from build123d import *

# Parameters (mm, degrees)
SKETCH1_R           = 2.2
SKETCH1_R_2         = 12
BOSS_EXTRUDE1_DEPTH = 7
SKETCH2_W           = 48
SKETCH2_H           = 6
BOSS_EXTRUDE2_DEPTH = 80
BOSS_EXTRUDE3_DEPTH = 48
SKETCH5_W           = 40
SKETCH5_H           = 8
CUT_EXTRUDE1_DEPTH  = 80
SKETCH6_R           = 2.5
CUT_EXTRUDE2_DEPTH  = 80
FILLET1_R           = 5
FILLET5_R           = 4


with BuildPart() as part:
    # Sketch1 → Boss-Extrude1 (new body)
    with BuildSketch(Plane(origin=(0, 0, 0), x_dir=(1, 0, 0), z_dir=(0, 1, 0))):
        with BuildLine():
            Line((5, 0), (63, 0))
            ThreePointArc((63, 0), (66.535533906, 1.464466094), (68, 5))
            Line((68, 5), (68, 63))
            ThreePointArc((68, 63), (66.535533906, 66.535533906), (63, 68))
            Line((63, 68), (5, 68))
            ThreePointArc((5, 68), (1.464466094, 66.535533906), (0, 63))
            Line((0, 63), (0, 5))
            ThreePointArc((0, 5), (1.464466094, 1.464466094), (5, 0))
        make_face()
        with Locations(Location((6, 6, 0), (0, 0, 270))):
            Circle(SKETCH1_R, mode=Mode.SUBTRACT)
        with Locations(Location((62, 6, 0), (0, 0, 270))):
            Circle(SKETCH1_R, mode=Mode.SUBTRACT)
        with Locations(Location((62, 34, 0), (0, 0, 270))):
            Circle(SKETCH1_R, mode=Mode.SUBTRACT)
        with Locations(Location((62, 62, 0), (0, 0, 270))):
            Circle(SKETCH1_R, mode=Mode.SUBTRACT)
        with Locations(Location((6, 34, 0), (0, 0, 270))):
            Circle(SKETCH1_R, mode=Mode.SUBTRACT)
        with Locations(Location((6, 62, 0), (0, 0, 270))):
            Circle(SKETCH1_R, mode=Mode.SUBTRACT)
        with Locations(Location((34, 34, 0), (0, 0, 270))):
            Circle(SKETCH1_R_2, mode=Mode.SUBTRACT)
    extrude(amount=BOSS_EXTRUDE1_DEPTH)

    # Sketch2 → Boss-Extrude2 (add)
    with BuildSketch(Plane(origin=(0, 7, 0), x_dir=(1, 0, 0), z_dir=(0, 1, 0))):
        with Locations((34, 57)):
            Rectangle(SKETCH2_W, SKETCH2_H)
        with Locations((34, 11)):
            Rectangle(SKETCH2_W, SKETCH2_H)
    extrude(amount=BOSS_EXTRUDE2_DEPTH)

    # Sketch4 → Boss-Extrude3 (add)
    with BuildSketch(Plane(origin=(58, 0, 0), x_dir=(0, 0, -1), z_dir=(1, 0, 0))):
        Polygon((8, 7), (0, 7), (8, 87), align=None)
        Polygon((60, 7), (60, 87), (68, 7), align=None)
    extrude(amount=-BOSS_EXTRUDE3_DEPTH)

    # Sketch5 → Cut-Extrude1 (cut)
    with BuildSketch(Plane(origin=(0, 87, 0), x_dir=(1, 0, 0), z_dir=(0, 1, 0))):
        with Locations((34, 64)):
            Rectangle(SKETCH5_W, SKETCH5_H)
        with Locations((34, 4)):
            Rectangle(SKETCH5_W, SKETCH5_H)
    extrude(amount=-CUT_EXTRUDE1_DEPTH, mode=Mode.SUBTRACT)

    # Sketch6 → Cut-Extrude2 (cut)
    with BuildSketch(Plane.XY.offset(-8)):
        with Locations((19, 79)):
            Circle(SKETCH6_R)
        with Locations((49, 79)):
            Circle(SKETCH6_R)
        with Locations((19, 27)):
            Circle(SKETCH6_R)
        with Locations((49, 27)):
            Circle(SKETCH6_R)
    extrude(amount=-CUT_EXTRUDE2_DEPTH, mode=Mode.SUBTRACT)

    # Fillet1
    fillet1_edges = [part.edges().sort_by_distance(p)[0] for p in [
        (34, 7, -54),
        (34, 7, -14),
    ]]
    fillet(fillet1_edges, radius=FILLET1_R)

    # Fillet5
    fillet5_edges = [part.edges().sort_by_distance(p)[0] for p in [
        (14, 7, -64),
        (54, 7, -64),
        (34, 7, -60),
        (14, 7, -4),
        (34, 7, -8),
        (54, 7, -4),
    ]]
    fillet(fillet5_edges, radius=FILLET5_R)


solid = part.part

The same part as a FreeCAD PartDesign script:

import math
import FreeCAD as App
import Part
import Sketcher
Q = App.Units.Quantity


def edges_at(feature, points):
    """Names of the edges that pass closest to the given points."""
    edges = feature.Shape.Edges
    near = lambda p: min(range(len(edges)), key=lambda i: edges[i].distToShape(Part.Vertex(*p))[0])
    return sorted({f"Edge{near(p) + 1}" for p in points})

doc = App.newDocument("Part")
body = doc.addObject("PartDesign::Body", "Body")

sketch1 = doc.addObject("Sketcher::SketchObject", "Sketch")
body.addObject(sketch1)
sketch1.AttachmentSupport = (doc.XZ_Plane, [""])
sketch1.MapMode = "FlatFace"
sketch1.addGeometry(Part.LineSegment(App.Vector(5, 0, 0), App.Vector(63, 0, 0)), False)
sketch1.addGeometry(Part.ArcOfCircle(Part.Circle(App.Vector(63, -5, 0), App.Vector(0, 0, 1), 5), math.radians(0), math.radians(90)), False)
sketch1.addGeometry(Part.LineSegment(App.Vector(68, -5, 0), App.Vector(68, -63, 0)), False)
sketch1.addGeometry(Part.ArcOfCircle(Part.Circle(App.Vector(63, -63, 0), App.Vector(0, 0, 1), 5), math.radians(-90), math.radians(0)), False)
sketch1.addGeometry(Part.LineSegment(App.Vector(63, -68, 0), App.Vector(5, -68, 0)), False)
sketch1.addGeometry(Part.ArcOfCircle(Part.Circle(App.Vector(5, -63, 0), App.Vector(0, 0, 1), 5), math.radians(180), math.radians(270)), False)
sketch1.addGeometry(Part.LineSegment(App.Vector(0, -63, 0), App.Vector(0, -5, 0)), False)
sketch1.addGeometry(Part.ArcOfCircle(Part.Circle(App.Vector(5, -5, 0), App.Vector(0, 0, 1), 5), math.radians(90), math.radians(180)), False)
sketch1.addGeometry(Part.Circle(App.Vector(6, -6, 0), App.Vector(0, 0, 1), 2.2), False)
sketch1.addGeometry(Part.Circle(App.Vector(6, -34, 0), App.Vector(0, 0, 1), 2.2), False)
sketch1.addGeometry(Part.Circle(App.Vector(62, -6, 0), App.Vector(0, 0, 1), 2.2), False)
sketch1.addGeometry(Part.Circle(App.Vector(34, -34, 0), App.Vector(0, 0, 1), 12), False)
sketch1.addGeometry(Part.Circle(App.Vector(62, -34, 0), App.Vector(0, 0, 1), 2.2), False)
sketch1.addGeometry(Part.Circle(App.Vector(6, -62, 0), App.Vector(0, 0, 1), 2.2), False)
sketch1.addGeometry(Part.Circle(App.Vector(62, -62, 0), App.Vector(0, 0, 1), 2.2), False)
sketch1.addConstraint(Sketcher.Constraint("Tangent", 0, 2, 1, 2))
sketch1.addConstraint(Sketcher.Constraint("Tangent", 1, 1, 2, 1))
sketch1.addConstraint(Sketcher.Constraint("Tangent", 2, 2, 3, 2))
sketch1.addConstraint(Sketcher.Constraint("Tangent", 3, 1, 4, 1))
sketch1.addConstraint(Sketcher.Constraint("Tangent", 4, 2, 5, 2))
sketch1.addConstraint(Sketcher.Constraint("Tangent", 5, 1, 6, 1))
sketch1.addConstraint(Sketcher.Constraint("Tangent", 6, 2, 7, 2))
sketch1.addConstraint(Sketcher.Constraint("Tangent", 7, 1, 0, 1))
sketch1.addConstraint(Sketcher.Constraint("Horizontal", 0))
sketch1.addConstraint(Sketcher.Constraint("Vertical", 2))
sketch1.addConstraint(Sketcher.Constraint("Horizontal", 4))
sketch1.addConstraint(Sketcher.Constraint("Vertical", 6))
sketch1.addConstraint(Sketcher.Constraint("Equal", 1, 3))
sketch1.addConstraint(Sketcher.Constraint("Equal", 3, 5))
sketch1.addConstraint(Sketcher.Constraint("Equal", 5, 7))
sketch1.addConstraint(Sketcher.Constraint("Equal", 8, 9))
sketch1.addConstraint(Sketcher.Constraint("Equal", 9, 10))
sketch1.addConstraint(Sketcher.Constraint("Equal", 10, 12))
sketch1.addConstraint(Sketcher.Constraint("Equal", 12, 13))
sketch1.addConstraint(Sketcher.Constraint("Equal", 13, 14))
sketch1.addConstraint(Sketcher.Constraint("PointOnObject", 0, 2, -1))
sketch1.addConstraint(Sketcher.Constraint("PointOnObject", 5, 1, -2))
sketch1.addConstraint(Sketcher.Constraint("Horizontal", 8, 3, 10, 3))
sketch1.addConstraint(Sketcher.Constraint("Horizontal", 9, 3, 11, 3))
sketch1.addConstraint(Sketcher.Constraint("Horizontal", 11, 3, 12, 3))
sketch1.addConstraint(Sketcher.Constraint("Horizontal", 13, 3, 14, 3))
sketch1.addConstraint(Sketcher.Constraint("Vertical", 8, 3, 9, 3))
sketch1.addConstraint(Sketcher.Constraint("Vertical", 10, 3, 12, 3))
sketch1.addConstraint(Sketcher.Constraint("Vertical", 9, 3, 13, 3))
sketch1.addConstraint(Sketcher.Constraint("Vertical", 12, 3, 14, 3))
sketch1.addConstraint(Sketcher.Constraint("Equal", 4, 2))
sketch1.addConstraint(Sketcher.Constraint("Diameter", 11, Q("24 mm")))
sketch1.addConstraint(Sketcher.Constraint("Radius", 1, Q("5 mm")))
sketch1.addConstraint(Sketcher.Constraint("Diameter", 8, Q("4.4 mm")))
sketch1.addConstraint(Sketcher.Constraint("DistanceX", 0, 1, 0, 2, Q("58 mm")))
sketch1.addConstraint(Sketcher.Constraint("DistanceX", -1, 1, 8, 3, Q("6 mm")))
sketch1.addConstraint(Sketcher.Constraint("DistanceY", 8, 3, -1, 1, Q("6 mm")))
sketch1.addConstraint(Sketcher.Constraint("DistanceY", 9, 3, -1, 1, Q("34 mm")))
sketch1.addConstraint(Sketcher.Constraint("DistanceX", -1, 1, 10, 3, Q("62 mm")))
sketch1.addConstraint(Sketcher.Constraint("DistanceX", -1, 1, 11, 3, Q("34 mm")))
sketch1.addConstraint(Sketcher.Constraint("DistanceY", 13, 3, -1, 1, Q("62 mm")))
pad1 = doc.addObject("PartDesign::Pad", "Pad")
body.addObject(pad1)
pad1.Profile = sketch1
pad1.Length = 7
pad1.Reversed = True

sketch2 = doc.addObject("Sketcher::SketchObject", "Sketch001")
body.addObject(sketch2)
sketch2.AttachmentSupport = (doc.XZ_Plane, [""])
sketch2.MapMode = "FlatFace"
sketch2.AttachmentOffset = App.Placement(App.Vector(0, 0, -7), App.Rotation())
sketch2.addGeometry(Part.LineSegment(App.Vector(10, -60, 0), App.Vector(10, -54, 0)), False)
sketch2.addGeometry(Part.LineSegment(App.Vector(10, -54, 0), App.Vector(58, -54, 0)), False)
sketch2.addGeometry(Part.LineSegment(App.Vector(58, -54, 0), App.Vector(58, -60, 0)), False)
sketch2.addGeometry(Part.LineSegment(App.Vector(58, -60, 0), App.Vector(10, -60, 0)), False)
sketch2.addGeometry(Part.LineSegment(App.Vector(10, -14, 0), App.Vector(10, -8, 0)), False)
sketch2.addGeometry(Part.LineSegment(App.Vector(10, -8, 0), App.Vector(58, -8, 0)), False)
sketch2.addGeometry(Part.LineSegment(App.Vector(58, -8, 0), App.Vector(58, -14, 0)), False)
sketch2.addGeometry(Part.LineSegment(App.Vector(58, -14, 0), App.Vector(10, -14, 0)), False)
sketch2.addConstraint(Sketcher.Constraint("Coincident", 0, 2, 1, 1))
sketch2.addConstraint(Sketcher.Constraint("Coincident", 1, 2, 2, 1))
sketch2.addConstraint(Sketcher.Constraint("Coincident", 2, 2, 3, 1))
sketch2.addConstraint(Sketcher.Constraint("Coincident", 3, 2, 0, 1))
sketch2.addConstraint(Sketcher.Constraint("Coincident", 4, 2, 5, 1))
sketch2.addConstraint(Sketcher.Constraint("Coincident", 5, 2, 6, 1))
sketch2.addConstraint(Sketcher.Constraint("Coincident", 6, 2, 7, 1))
sketch2.addConstraint(Sketcher.Constraint("Coincident", 7, 2, 4, 1))
sketch2.addConstraint(Sketcher.Constraint("Vertical", 0))
sketch2.addConstraint(Sketcher.Constraint("Horizontal", 1))
sketch2.addConstraint(Sketcher.Constraint("Vertical", 2))
sketch2.addConstraint(Sketcher.Constraint("Horizontal", 3))
sketch2.addConstraint(Sketcher.Constraint("Vertical", 4))
sketch2.addConstraint(Sketcher.Constraint("Horizontal", 5))
sketch2.addConstraint(Sketcher.Constraint("Vertical", 6))
sketch2.addConstraint(Sketcher.Constraint("Horizontal", 7))
sketch2.addConstraint(Sketcher.Constraint("Vertical", 3, 2, 4, 2))
sketch2.addConstraint(Sketcher.Constraint("Vertical", 2, 2, 5, 2))
sketch2.addConstraint(Sketcher.Constraint("Equal", 2, 4))
sketch2.addConstraint(Sketcher.Constraint("DistanceX", 1, 1, 1, 2, Q("48 mm")))
sketch2.addConstraint(Sketcher.Constraint("DistanceY", 0, 1, 0, 2, Q("6 mm")))
sketch2.addConstraint(Sketcher.Constraint("DistanceX", -1, 1, 0, 2, Q("10 mm")))
sketch2.addConstraint(Sketcher.Constraint("DistanceY", 0, 2, -1, 1, Q("54 mm")))
sketch2.addConstraint(Sketcher.Constraint("DistanceY", 4, 2, -1, 1, Q("8 mm")))
pad2 = doc.addObject("PartDesign::Pad", "Pad001")
body.addObject(pad2)
pad2.Profile = sketch2
pad2.Length = 80
pad2.Reversed = True

sketch3 = doc.addObject("Sketcher::SketchObject", "Sketch002")
body.addObject(sketch3)
sketch3.AttachmentSupport = (doc.YZ_Plane, [""])
sketch3.MapMode = "FlatFace"
sketch3.AttachmentOffset = App.Placement(App.Vector(0, 0, 58), App.Rotation())
sketch3.addGeometry(Part.LineSegment(App.Vector(7, 0, 0), App.Vector(7, -8, 0)), False)
sketch3.addGeometry(Part.LineSegment(App.Vector(7, -8, 0), App.Vector(87, -8, 0)), False)
sketch3.addGeometry(Part.LineSegment(App.Vector(87, -8, 0), App.Vector(7, 0, 0)), False)
sketch3.addGeometry(Part.LineSegment(App.Vector(87, -60, 0), App.Vector(7, -60, 0)), False)
sketch3.addGeometry(Part.LineSegment(App.Vector(7, -60, 0), App.Vector(7, -68, 0)), False)
sketch3.addGeometry(Part.LineSegment(App.Vector(7, -68, 0), App.Vector(87, -60, 0)), False)
sketch3.addConstraint(Sketcher.Constraint("Coincident", 0, 2, 1, 1))
sketch3.addConstraint(Sketcher.Constraint("Coincident", 1, 2, 2, 1))
sketch3.addConstraint(Sketcher.Constraint("Coincident", 2, 2, 0, 1))
sketch3.addConstraint(Sketcher.Constraint("Coincident", 3, 2, 4, 1))
sketch3.addConstraint(Sketcher.Constraint("Coincident", 4, 2, 5, 1))
sketch3.addConstraint(Sketcher.Constraint("Coincident", 5, 2, 3, 1))
sketch3.addConstraint(Sketcher.Constraint("Vertical", 0))
sketch3.addConstraint(Sketcher.Constraint("Horizontal", 1))
sketch3.addConstraint(Sketcher.Constraint("Horizontal", 3))
sketch3.addConstraint(Sketcher.Constraint("Vertical", 4))
sketch3.addConstraint(Sketcher.Constraint("PointOnObject", 2, 2, -1))
sketch3.addConstraint(Sketcher.Constraint("Vertical", 2, 2, 3, 2))
sketch3.addConstraint(Sketcher.Constraint("Vertical", 1, 2, 5, 2))
sketch3.addConstraint(Sketcher.Constraint("Equal", 0, 4))
sketch3.addConstraint(Sketcher.Constraint("DistanceX", 1, 1, 1, 2, Q("80 mm")))
sketch3.addConstraint(Sketcher.Constraint("DistanceY", 0, 2, 0, 1, Q("8 mm")))
sketch3.addConstraint(Sketcher.Constraint("DistanceX", -1, 1, 0, 2, Q("7 mm")))
sketch3.addConstraint(Sketcher.Constraint("DistanceY", 3, 2, -1, 1, Q("60 mm")))
pad3 = doc.addObject("PartDesign::Pad", "Pad002")
body.addObject(pad3)
pad3.Profile = sketch3
pad3.Length = 48
pad3.Reversed = True

sketch4 = doc.addObject("Sketcher::SketchObject", "Sketch003")
body.addObject(sketch4)
sketch4.AttachmentSupport = (doc.XZ_Plane, [""])
sketch4.MapMode = "FlatFace"
sketch4.AttachmentOffset = App.Placement(App.Vector(0, 0, -87), App.Rotation())
sketch4.addGeometry(Part.LineSegment(App.Vector(14, -68, 0), App.Vector(14, -60, 0)), False)
sketch4.addGeometry(Part.LineSegment(App.Vector(14, -60, 0), App.Vector(54, -60, 0)), False)
sketch4.addGeometry(Part.LineSegment(App.Vector(54, -60, 0), App.Vector(54, -68, 0)), False)
sketch4.addGeometry(Part.LineSegment(App.Vector(54, -68, 0), App.Vector(14, -68, 0)), False)
sketch4.addGeometry(Part.LineSegment(App.Vector(14, -8, 0), App.Vector(14, 0, 0)), False)
sketch4.addGeometry(Part.LineSegment(App.Vector(14, 0, 0), App.Vector(54, 0, 0)), False)
sketch4.addGeometry(Part.LineSegment(App.Vector(54, 0, 0), App.Vector(54, -8, 0)), False)
sketch4.addGeometry(Part.LineSegment(App.Vector(54, -8, 0), App.Vector(14, -8, 0)), False)
sketch4.addConstraint(Sketcher.Constraint("Coincident", 0, 2, 1, 1))
sketch4.addConstraint(Sketcher.Constraint("Coincident", 1, 2, 2, 1))
sketch4.addConstraint(Sketcher.Constraint("Coincident", 2, 2, 3, 1))
sketch4.addConstraint(Sketcher.Constraint("Coincident", 3, 2, 0, 1))
sketch4.addConstraint(Sketcher.Constraint("Coincident", 4, 2, 5, 1))
sketch4.addConstraint(Sketcher.Constraint("Coincident", 5, 2, 6, 1))
sketch4.addConstraint(Sketcher.Constraint("Coincident", 6, 2, 7, 1))
sketch4.addConstraint(Sketcher.Constraint("Coincident", 7, 2, 4, 1))
sketch4.addConstraint(Sketcher.Constraint("Vertical", 0))
sketch4.addConstraint(Sketcher.Constraint("Horizontal", 1))
sketch4.addConstraint(Sketcher.Constraint("Vertical", 2))
sketch4.addConstraint(Sketcher.Constraint("Horizontal", 3))
sketch4.addConstraint(Sketcher.Constraint("Vertical", 4))
sketch4.addConstraint(Sketcher.Constraint("Horizontal", 5))
sketch4.addConstraint(Sketcher.Constraint("Vertical", 6))
sketch4.addConstraint(Sketcher.Constraint("Horizontal", 7))
sketch4.addConstraint(Sketcher.Constraint("PointOnObject", 4, 2, -1))
sketch4.addConstraint(Sketcher.Constraint("Vertical", 3, 2, 4, 2))
sketch4.addConstraint(Sketcher.Constraint("Vertical", 2, 2, 5, 2))
sketch4.addConstraint(Sketcher.Constraint("Equal", 2, 4))
sketch4.addConstraint(Sketcher.Constraint("DistanceX", 1, 1, 1, 2, Q("40 mm")))
sketch4.addConstraint(Sketcher.Constraint("DistanceY", 0, 1, 0, 2, Q("8 mm")))
sketch4.addConstraint(Sketcher.Constraint("DistanceX", -1, 1, 0, 2, Q("14 mm")))
sketch4.addConstraint(Sketcher.Constraint("DistanceY", 0, 2, -1, 1, Q("60 mm")))
pocket1 = doc.addObject("PartDesign::Pocket", "Pocket")
body.addObject(pocket1)
pocket1.Profile = sketch4
pocket1.Length = 80
pocket1.Reversed = True

sketch5 = doc.addObject("Sketcher::SketchObject", "Sketch004")
body.addObject(sketch5)
sketch5.AttachmentSupport = (doc.XY_Plane, [""])
sketch5.MapMode = "FlatFace"
sketch5.AttachmentOffset = App.Placement(App.Vector(0, 0, -8), App.Rotation())
sketch5.addGeometry(Part.Circle(App.Vector(19, 79, 0), App.Vector(0, 0, 1), 2.5), False)
sketch5.addGeometry(Part.Circle(App.Vector(49, 79, 0), App.Vector(0, 0, 1), 2.5), False)
sketch5.addGeometry(Part.Circle(App.Vector(19, 27, 0), App.Vector(0, 0, 1), 2.5), False)
sketch5.addGeometry(Part.Circle(App.Vector(49, 27, 0), App.Vector(0, 0, 1), 2.5), False)
sketch5.addConstraint(Sketcher.Constraint("Equal", 0, 1))
sketch5.addConstraint(Sketcher.Constraint("Equal", 1, 2))
sketch5.addConstraint(Sketcher.Constraint("Equal", 2, 3))
sketch5.addConstraint(Sketcher.Constraint("Horizontal", 0, 3, 1, 3))
sketch5.addConstraint(Sketcher.Constraint("Horizontal", 2, 3, 3, 3))
sketch5.addConstraint(Sketcher.Constraint("Vertical", 0, 3, 2, 3))
sketch5.addConstraint(Sketcher.Constraint("Vertical", 1, 3, 3, 3))
sketch5.addConstraint(Sketcher.Constraint("Diameter", 0, Q("5 mm")))
sketch5.addConstraint(Sketcher.Constraint("DistanceX", -1, 1, 0, 3, Q("19 mm")))
sketch5.addConstraint(Sketcher.Constraint("DistanceY", -1, 1, 0, 3, Q("79 mm")))
sketch5.addConstraint(Sketcher.Constraint("DistanceX", -1, 1, 1, 3, Q("49 mm")))
sketch5.addConstraint(Sketcher.Constraint("DistanceY", -1, 1, 2, 3, Q("27 mm")))
pocket2 = doc.addObject("PartDesign::Pocket", "Pocket001")
body.addObject(pocket2)
pocket2.Profile = sketch5
pocket2.Length = 80
doc.recompute()

fillet = doc.addObject("PartDesign::Fillet", "Fillet")
body.addObject(fillet)
fillet.Base = (pocket2, edges_at(pocket2, [(34, 7, -54), (34, 7, -14)]))
fillet.Radius = 5
doc.recompute()

fillet2 = doc.addObject("PartDesign::Fillet", "Fillet001")
body.addObject(fillet2)
fillet2.Base = (fillet, edges_at(fillet, [
    (14, 7, -64),
    (54, 7, -64),
    (34, 7, -60),
    (14, 7, -4),
    (34, 7, -8),
    (54, 7, -4),
]))
fillet2.Radius = 4

doc.recompute()
